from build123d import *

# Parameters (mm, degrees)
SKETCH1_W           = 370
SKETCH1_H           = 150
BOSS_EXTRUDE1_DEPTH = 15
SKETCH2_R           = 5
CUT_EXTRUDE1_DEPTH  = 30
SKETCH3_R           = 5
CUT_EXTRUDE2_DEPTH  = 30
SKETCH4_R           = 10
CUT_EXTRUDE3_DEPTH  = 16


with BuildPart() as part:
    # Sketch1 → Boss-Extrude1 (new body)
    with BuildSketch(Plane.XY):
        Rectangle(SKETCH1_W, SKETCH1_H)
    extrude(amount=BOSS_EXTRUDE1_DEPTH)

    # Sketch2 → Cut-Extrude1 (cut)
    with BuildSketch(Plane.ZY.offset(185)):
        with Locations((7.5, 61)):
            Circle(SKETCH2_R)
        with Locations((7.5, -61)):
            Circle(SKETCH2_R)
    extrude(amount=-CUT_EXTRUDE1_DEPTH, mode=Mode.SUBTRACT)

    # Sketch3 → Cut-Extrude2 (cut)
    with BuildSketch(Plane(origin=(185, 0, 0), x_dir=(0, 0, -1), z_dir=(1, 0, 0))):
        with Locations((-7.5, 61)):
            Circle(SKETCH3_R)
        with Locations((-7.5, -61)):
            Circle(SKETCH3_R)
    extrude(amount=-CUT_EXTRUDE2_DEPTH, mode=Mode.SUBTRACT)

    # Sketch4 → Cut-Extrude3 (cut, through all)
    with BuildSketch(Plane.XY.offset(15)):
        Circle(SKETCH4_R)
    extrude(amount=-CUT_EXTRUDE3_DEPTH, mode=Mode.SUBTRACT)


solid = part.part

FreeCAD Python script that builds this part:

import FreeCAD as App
import Part
import Sketcher
from FreeCAD import Vector

doc = App.newDocument("Part")
body = doc.addObject("PartDesign::Body", "Body")

sketch1 = body.newObject("Sketcher::SketchObject", "Sketch")
sketch1.AttachmentSupport = (doc.getObject("XY_Plane"), [""])
sketch1.MapMode = "FlatFace"
sketch1.addGeometry([
    Part.LineSegment(Vector(-185, 75, 0), Vector(-185, -75, 0)),
    Part.LineSegment(Vector(-185, -75, 0), Vector(185, -75, 0)),
    Part.LineSegment(Vector(185, -75, 0), Vector(185, 75, 0)),
    Part.LineSegment(Vector(185, 75, 0), Vector(-185, 75, 0)),
], False)
sketch1.addConstraint([
    Sketcher.Constraint("Coincident", 0, 2, 1, 1),
    Sketcher.Constraint("Coincident", 1, 2, 2, 1),
    Sketcher.Constraint("Coincident", 2, 2, 3, 1),
    Sketcher.Constraint("Coincident", 3, 2, 0, 1),
    Sketcher.Constraint("Vertical", 0),
    Sketcher.Constraint("Horizontal", 1),
    Sketcher.Constraint("Vertical", 2),
    Sketcher.Constraint("Horizontal", 3),
    Sketcher.Constraint("Symmetric", 0, 2, 2, 2, -1, 1),
    Sketcher.Constraint("DistanceX", 1, 1, 1, 2, 370.0),
    Sketcher.Constraint("DistanceY", 0, 2, 0, 1, 150.0),
])
pad1 = body.newObject("PartDesign::Pad", "Pad")
pad1.Profile = sketch1
pad1.Length = 15

sketch2 = body.newObject("Sketcher::SketchObject", "Sketch001")
sketch2.AttachmentSupport = (doc.getObject("YZ_Plane"), [""])
sketch2.MapMode = "FlatFace"
sketch2.AttachmentOffset = App.Placement(Vector(0, 0, -185), App.Rotation())
sketch2.addGeometry([
    Part.Circle(Vector(61, 7.5, 0), Vector(0, 0, 1), 5),
    Part.Circle(Vector(-61, 7.5, 0), Vector(0, 0, 1), 5),
], False)
sketch2.addConstraint([
    Sketcher.Constraint("Equal", 0, 1),
    Sketcher.Constraint("Symmetric", 0, 3, 1, 3, -2),
    Sketcher.Constraint("Diameter", 0, 10.0),
    Sketcher.Constraint("DistanceX", -1, 1, 0, 3, 61.0),
    Sketcher.Constraint("DistanceY", -1, 1, 0, 3, 7.5),
])
pocket1 = body.newObject("PartDesign::Pocket", "Pocket")
pocket1.Profile = sketch2
pocket1.Length = 30
pocket1.Reversed = True

sketch3 = body.newObject("Sketcher::SketchObject", "Sketch002")
sketch3.AttachmentSupport = (doc.getObject("YZ_Plane"), [""])
sketch3.MapMode = "FlatFace"
sketch3.AttachmentOffset = App.Placement(Vector(0, 0, 185), App.Rotation())
sketch3.addGeometry([
    Part.Circle(Vector(61, 7.5, 0), Vector(0, 0, 1), 5),
    Part.Circle(Vector(-61, 7.5, 0), Vector(0, 0, 1), 5),
], False)
sketch3.addConstraint([
    Sketcher.Constraint("Equal", 0, 1),
    Sketcher.Constraint("Symmetric", 0, 3, 1, 3, -2),
    Sketcher.Constraint("Diameter", 0, 10.0),
    Sketcher.Constraint("DistanceX", -1, 1, 0, 3, 61.0),
    Sketcher.Constraint("DistanceY", -1, 1, 0, 3, 7.5),
])
pocket2 = body.newObject("PartDesign::Pocket", "Pocket001")
pocket2.Profile = sketch3
pocket2.Length = 30

sketch4 = body.newObject("Sketcher::SketchObject", "Sketch003")
sketch4.AttachmentSupport = (doc.getObject("XY_Plane"), [""])
sketch4.MapMode = "FlatFace"
sketch4.AttachmentOffset = App.Placement(Vector(0, 0, 15), App.Rotation())
sketch4.addGeometry(Part.Circle(Vector(0, 0, 0), Vector(0, 0, 1), 10), False)
sketch4.addConstraint([
    Sketcher.Constraint("Coincident", 0, 3, -1, 1),
    Sketcher.Constraint("Diameter", 0, 20.0),
])
pocket3 = body.newObject("PartDesign::Pocket", "Pocket002")
pocket3.Profile = sketch4
pocket3.Type = "ThroughAll"

doc.recompute()
